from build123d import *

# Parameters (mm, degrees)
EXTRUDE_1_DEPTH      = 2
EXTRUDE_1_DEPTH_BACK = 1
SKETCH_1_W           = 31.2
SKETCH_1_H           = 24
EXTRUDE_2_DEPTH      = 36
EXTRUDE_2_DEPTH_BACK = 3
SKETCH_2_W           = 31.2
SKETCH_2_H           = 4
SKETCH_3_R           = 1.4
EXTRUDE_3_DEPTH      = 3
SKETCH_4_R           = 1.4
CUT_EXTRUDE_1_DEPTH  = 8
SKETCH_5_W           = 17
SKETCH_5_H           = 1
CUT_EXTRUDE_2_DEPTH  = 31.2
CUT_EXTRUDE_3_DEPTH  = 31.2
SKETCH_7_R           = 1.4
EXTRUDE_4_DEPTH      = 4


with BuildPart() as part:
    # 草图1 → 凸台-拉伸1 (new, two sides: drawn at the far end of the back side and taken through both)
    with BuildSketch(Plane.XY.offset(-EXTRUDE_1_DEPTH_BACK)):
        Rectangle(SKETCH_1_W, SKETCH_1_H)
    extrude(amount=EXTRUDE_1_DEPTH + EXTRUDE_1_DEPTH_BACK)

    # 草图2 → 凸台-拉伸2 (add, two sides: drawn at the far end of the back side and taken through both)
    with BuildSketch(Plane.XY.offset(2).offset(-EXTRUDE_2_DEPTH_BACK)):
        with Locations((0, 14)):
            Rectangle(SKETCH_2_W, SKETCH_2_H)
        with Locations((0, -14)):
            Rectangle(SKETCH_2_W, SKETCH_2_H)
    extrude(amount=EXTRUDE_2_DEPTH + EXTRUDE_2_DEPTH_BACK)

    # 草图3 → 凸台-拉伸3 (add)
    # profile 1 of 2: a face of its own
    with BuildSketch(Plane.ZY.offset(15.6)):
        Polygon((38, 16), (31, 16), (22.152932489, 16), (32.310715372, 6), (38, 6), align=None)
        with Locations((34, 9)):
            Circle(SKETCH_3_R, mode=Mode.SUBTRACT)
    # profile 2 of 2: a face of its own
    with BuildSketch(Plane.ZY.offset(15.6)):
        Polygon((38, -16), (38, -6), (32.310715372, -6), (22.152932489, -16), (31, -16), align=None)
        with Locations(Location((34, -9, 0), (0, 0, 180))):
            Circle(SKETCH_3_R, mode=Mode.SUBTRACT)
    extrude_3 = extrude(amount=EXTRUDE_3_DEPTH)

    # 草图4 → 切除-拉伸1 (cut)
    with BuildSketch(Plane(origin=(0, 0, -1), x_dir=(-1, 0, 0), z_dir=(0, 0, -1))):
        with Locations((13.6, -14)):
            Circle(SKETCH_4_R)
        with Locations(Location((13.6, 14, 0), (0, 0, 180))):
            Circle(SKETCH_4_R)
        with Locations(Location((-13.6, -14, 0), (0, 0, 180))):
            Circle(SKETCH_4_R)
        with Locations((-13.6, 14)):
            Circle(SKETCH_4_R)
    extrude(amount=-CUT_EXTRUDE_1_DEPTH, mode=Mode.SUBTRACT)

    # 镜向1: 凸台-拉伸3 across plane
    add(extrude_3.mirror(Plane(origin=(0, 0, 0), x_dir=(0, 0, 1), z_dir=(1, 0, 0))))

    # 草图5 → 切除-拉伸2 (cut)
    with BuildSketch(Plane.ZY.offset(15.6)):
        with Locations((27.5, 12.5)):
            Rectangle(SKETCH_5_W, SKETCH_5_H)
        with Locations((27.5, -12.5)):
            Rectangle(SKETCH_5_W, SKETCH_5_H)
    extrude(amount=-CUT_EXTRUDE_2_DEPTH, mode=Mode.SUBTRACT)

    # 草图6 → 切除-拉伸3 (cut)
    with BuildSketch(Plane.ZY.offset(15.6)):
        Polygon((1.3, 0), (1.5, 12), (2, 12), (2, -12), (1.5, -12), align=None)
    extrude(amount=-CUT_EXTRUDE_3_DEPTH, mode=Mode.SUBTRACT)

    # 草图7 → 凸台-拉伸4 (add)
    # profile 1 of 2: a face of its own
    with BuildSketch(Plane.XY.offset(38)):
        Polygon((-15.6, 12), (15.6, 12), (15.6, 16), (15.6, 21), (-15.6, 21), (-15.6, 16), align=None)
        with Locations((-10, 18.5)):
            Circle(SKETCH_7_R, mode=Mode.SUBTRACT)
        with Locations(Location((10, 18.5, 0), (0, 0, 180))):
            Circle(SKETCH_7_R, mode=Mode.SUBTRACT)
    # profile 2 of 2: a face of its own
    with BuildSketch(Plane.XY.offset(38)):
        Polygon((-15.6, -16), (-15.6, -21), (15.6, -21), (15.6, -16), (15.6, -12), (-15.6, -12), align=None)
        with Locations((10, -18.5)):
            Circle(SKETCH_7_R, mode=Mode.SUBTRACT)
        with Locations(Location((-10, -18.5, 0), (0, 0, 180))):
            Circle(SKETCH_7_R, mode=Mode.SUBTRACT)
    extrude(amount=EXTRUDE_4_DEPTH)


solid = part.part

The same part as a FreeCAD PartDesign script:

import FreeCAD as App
import Part
import Sketcher

V = App.Vector


def add_polygon(sketch, points):
    """Adds a closed chain of lines whose ends are joined by coincident constraints."""
    first, n = sketch.GeometryCount, len(points)
    for a, b in zip(points, points[1:] + points[:1]):
        sketch.addGeometry(Part.LineSegment(App.Vector(*a, 0), App.Vector(*b, 0)), False)
    for i in range(n):
        sketch.addConstraint(Sketcher.Constraint("Coincident", first + i, 2, first + (i + 1) % n, 1))

doc = App.newDocument("Part")
params = doc.addObject("Spreadsheet::Sheet", "Params")
for row, (alias, value) in enumerate([
    ("sketch1_height", "24 mm"),
    ("sketch1_width", "31.2 mm"),
    ("pad1_length", "2 mm"),
    ("pad1_length2", "1 mm"),
    ("sketch2_height", "4 mm"),
    ("sketch2_width", "31.2 mm"),
    ("pad2_length", "36 mm"),
    ("pad2_length2", "3 mm"),
    ("sketch3_diameter", "2.8 mm"),
    ("sketch3_width", "10 mm"),
    ("pad3_length", "3 mm"),
    ("sketch4_diameter", "2.8 mm"),
    ("pocket1_length", "8 mm"),
    ("sketch5_width", "1 mm"),
    ("sketch5_height", "17 mm"),
    ("pocket2_length", "31.2 mm"),
    ("sketch6_width", "24 mm"),
    ("sketch6_height", "0.5 mm"),
    ("pocket3_length", "31.2 mm"),
    ("sketch7_diameter", "2.8 mm"),
    ("sketch7_height", "9 mm"),
    ("sketch7_width", "31.2 mm"),
    ("pad4_length", "4 mm"),
], start=1):
    params.set(f"A{row}", alias)
    params.set(f"B{row}", "=" + value)
    params.setAlias(f"B{row}", alias)

body = doc.addObject("PartDesign::Body", "Body")

sketch1 = doc.addObject("Sketcher::SketchObject", "Sketch")
body.addObject(sketch1)
sketch1.AttachmentSupport = (doc.XY_Plane, [""])
sketch1.MapMode = "FlatFace"
add_polygon(sketch1, [(-15.6, 12), (-15.6, -12), (15.6, -12), (15.6, 12)])
sketch1.addConstraint([
    Sketcher.Constraint("Vertical", 0),
    Sketcher.Constraint("Horizontal", 1),
    Sketcher.Constraint("Vertical", 2),
    Sketcher.Constraint("Horizontal", 3),
    Sketcher.Constraint("Symmetric", 0, 2, 2, 2, -1, 1),
    Sketcher.Constraint("DistanceY", 0, 2, 0, 1, 24.0),
    Sketcher.Constraint("DistanceX", 1, 1, 1, 2, 31.2),
])
sketch1.setExpression("Constraints[9]", "Params.sketch1_height")
sketch1.setExpression("Constraints[10]", "Params.sketch1_width")
pad1 = doc.addObject("PartDesign::Pad", "Pad")
body.addObject(pad1)
pad1.Profile = sketch1
pad1.Type = "TwoLengths"
pad1.setExpression("Length", "Params.pad1_length")
pad1.setExpression("Length2", "Params.pad1_length2")

sketch2 = doc.addObject("Sketcher::SketchObject", "Sketch001")
body.addObject(sketch2)
sketch2.AttachmentSupport = (doc.XY_Plane, [""])
sketch2.MapMode = "FlatFace"
sketch2.AttachmentOffset = App.Placement(V(0, 0, 2), App.Rotation())
add_polygon(sketch2, [(-15.6, 16), (-15.6, 12), (15.6, 12), (15.6, 16)])
add_polygon(sketch2, [(-15.6, -12), (-15.6, -16), (15.6, -16), (15.6, -12)])
sketch2.addConstraint([
    Sketcher.Constraint("Vertical", 0),
    Sketcher.Constraint("Horizontal", 1),
    Sketcher.Constraint("Vertical", 2),
    Sketcher.Constraint("Horizontal", 3),
    Sketcher.Constraint("Vertical", 4),
    Sketcher.Constraint("Horizontal", 5),
    Sketcher.Constraint("Vertical", 6),
    Sketcher.Constraint("Horizontal", 7),
    Sketcher.Constraint("Symmetric", 2, 2, 4, 2, -1, 1),
    Sketcher.Constraint("Symmetric", 0, 2, 6, 2, -1, 1),
    Sketcher.Constraint("Vertical", 3, 2, 4, 2),
    Sketcher.Constraint("DistanceY", 0, 2, 0, 1, 4.0),
    Sketcher.Constraint("DistanceX", 1, 1, 1, 2, 31.2),
    Sketcher.Constraint("DistanceY", -1, 1, 0, 2, 12.0),
])
sketch2.setExpression("Constraints[19]", "Params.sketch2_height")
sketch2.setExpression("Constraints[20]", "Params.sketch2_width")
pad2 = doc.addObject("PartDesign::Pad", "Pad001")
body.addObject(pad2)
pad2.Profile = sketch2
pad2.Type = "TwoLengths"
pad2.setExpression("Length", "Params.pad2_length")
pad2.setExpression("Length2", "Params.pad2_length2")

sketch3 = doc.addObject("Sketcher::SketchObject", "Sketch002")
body.addObject(sketch3)
sketch3.AttachmentSupport = (doc.YZ_Plane, [""])
sketch3.MapMode = "FlatFace"
sketch3.AttachmentOffset = App.Placement(V(0, 0, -15.6), App.Rotation())
add_polygon(sketch3, [(16, 38), (16, 22.152932), (6, 32.310715), (6, 38)])
sketch3.addGeometry(Part.Circle(V(9, 34, 0), V(0, 0, 1), 1.4), False)
add_polygon(sketch3, [(-16, 38), (-6, 38), (-6, 32.310715), (-16, 22.152932)])
sketch3.addGeometry(Part.Circle(V(-9, 34, 0), V(0, 0, 1), 1.4), False)
sketch3.addConstraint([
    Sketcher.Constraint("Vertical", 0),
    Sketcher.Constraint("Vertical", 2),
    Sketcher.Constraint("Horizontal", 3),
    Sketcher.Constraint("Horizontal", 5),
    Sketcher.Constraint("Vertical", 6),
    Sketcher.Constraint("Vertical", 8),
    Sketcher.Constraint("Equal", 4, 9),
    Sketcher.Constraint("Symmetric", 4, 3, 9, 3, -2),
    Sketcher.Constraint("Symmetric", 2, 2, 5, 2, -2),
    Sketcher.Constraint("Symmetric", 0, 2, 7, 2, -2),
    Sketcher.Constraint("Horizontal", 1, 2, 6, 2),
    Sketcher.Constraint("Diameter", 4, 2.8),
    Sketcher.Constraint("DistanceX", 3, 1, 3, 2, 10.0),
    Sketcher.Constraint("DistanceX", -1, 1, 4, 3, 9.0),
    Sketcher.Constraint("DistanceY", -1, 1, 4, 3, 34.0),
    Sketcher.Constraint("DistanceX", -1, 1, 0, 2, 16.0),
    Sketcher.Constraint("DistanceY", -1, 1, 2, 2, 38.0),
    Sketcher.Constraint("Distance", 1, 14.254142),
    Sketcher.Constraint("DistanceY", 0, 2, 0, 1, 15.847068),
])
sketch3.setExpression("Constraints[19]", "Params.sketch3_diameter")
sketch3.setExpression("Constraints[20]", "Params.sketch3_width")
pad3 = doc.addObject("PartDesign::Pad", "Pad002")
body.addObject(pad3)
pad3.Profile = sketch3
pad3.setExpression("Length", "Params.pad3_length")
pad3.Reversed = True

sketch4 = doc.addObject("Sketcher::SketchObject", "Sketch003")
body.addObject(sketch4)
sketch4.AttachmentSupport = (doc.XY_Plane, [""])
sketch4.MapMode = "FlatFace"
sketch4.AttachmentOffset = App.Placement(V(0, 0, -1), App.Rotation())
sketch4.addGeometry([
    Part.Circle(V(-13.6, -14, 0), V(0, 0, 1), 1.4),
    Part.Circle(V(-13.6, 14, 0), V(0, 0, 1), 1.4),
    Part.Circle(V(13.6, -14, 0), V(0, 0, 1), 1.4),
    Part.Circle(V(13.6, 14, 0), V(0, 0, 1), 1.4),
], False)
sketch4.addConstraint([
    Sketcher.Constraint("Equal", 0, 1),
    Sketcher.Constraint("Equal", 1, 2),
    Sketcher.Constraint("Equal", 2, 3),
    Sketcher.Constraint("Symmetric", 1, 3, 2, 3, -1, 1),
    Sketcher.Constraint("Symmetric", 0, 3, 3, 3, -1, 1),
    Sketcher.Constraint("Symmetric", 0, 3, 2, 3, -2),
    Sketcher.Constraint("Diameter", 0, 2.8),
    Sketcher.Constraint("DistanceY", 0, 3, -1, 1, 14.0),
    Sketcher.Constraint("DistanceX", 0, 3, -1, 1, 13.6),
])
sketch4.setExpression("Constraints[6]", "Params.sketch4_diameter")
pocket1 = doc.addObject("PartDesign::Pocket", "Pocket")
body.addObject(pocket1)
pocket1.Profile = sketch4
pocket1.setExpression("Length", "Params.pocket1_length")
pocket1.Reversed = True
doc.recompute()

mirrored = doc.addObject("PartDesign::Mirrored", "Mirrored")
body.addObject(mirrored)
mirrored.Originals = [pad3]
mirrored.MirrorPlane = (doc.YZ_Plane, [""])
body.Tip = mirrored

sketch5 = doc.addObject("Sketcher::SketchObject", "Sketch004")
body.addObject(sketch5)
sketch5.AttachmentSupport = (doc.YZ_Plane, [""])
sketch5.MapMode = "FlatFace"
sketch5.AttachmentOffset = App.Placement(V(0, 0, -15.6), App.Rotation())
add_polygon(sketch5, [(13, 19), (12, 19), (12, 36), (13, 36)])
add_polygon(sketch5, [(-12, 19), (-13, 19), (-13, 36), (-12, 36)])
sketch5.addConstraint([
    Sketcher.Constraint("Horizontal", 0),
    Sketcher.Constraint("Vertical", 1),
    Sketcher.Constraint("Horizontal", 2),
    Sketcher.Constraint("Vertical", 3),
    Sketcher.Constraint("Horizontal", 4),
    Sketcher.Constraint("Vertical", 5),
    Sketcher.Constraint("Horizontal", 6),
    Sketcher.Constraint("Vertical", 7),
    Sketcher.Constraint("Symmetric", 3, 2, 4, 2, -2),
    Sketcher.Constraint("Symmetric", 1, 2, 6, 2, -2),
    Sketcher.Constraint("DistanceX", 0, 2, 0, 1, 1.0),
    Sketcher.Constraint("DistanceY", 1, 1, 1, 2, 17.0),
    Sketcher.Constraint("DistanceX", -1, 1, 0, 2, 12.0),
    Sketcher.Constraint("DistanceY", -1, 1, 0, 2, 19.0),
])
sketch5.setExpression("Constraints[18]", "Params.sketch5_width")
sketch5.setExpression("Constraints[19]", "Params.sketch5_height")
pocket2 = doc.addObject("PartDesign::Pocket", "Pocket001")
body.addObject(pocket2)
pocket2.Profile = sketch5
pocket2.setExpression("Length", "Params.pocket2_length")
pocket2.Reversed = True

sketch6 = doc.addObject("Sketcher::SketchObject", "Sketch005")
body.addObject(sketch6)
sketch6.AttachmentSupport = (doc.YZ_Plane, [""])
sketch6.MapMode = "FlatFace"
sketch6.AttachmentOffset = App.Placement(V(0, 0, -15.6), App.Rotation())
add_polygon(sketch6, [(12, 1.5), (0, 1.3), (-12, 1.5), (-12, 2), (12, 2)])
sketch6.addConstraint([
    Sketcher.Constraint("Vertical", 2),
    Sketcher.Constraint("Horizontal", 3),
    Sketcher.Constraint("Vertical", 4),
    Sketcher.Constraint("Symmetric", 1, 2, 4, 2, -2),
    Sketcher.Constraint("PointOnObject", 0, 2, -2),
    Sketcher.Constraint("DistanceX", 3, 1, 3, 2, 24.0),
    Sketcher.Constraint("DistanceY", 2, 1, 2, 2, 0.5),
    Sketcher.Constraint("DistanceY", -1, 1, 2, 2, 2.0),
    Sketcher.Constraint("DistanceY", -1, 1, 0, 2, 1.3),
])
sketch6.setExpression("Constraints[10]", "Params.sketch6_width")
sketch6.setExpression("Constraints[11]", "Params.sketch6_height")
pocket3 = doc.addObject("PartDesign::Pocket", "Pocket002")
body.addObject(pocket3)
pocket3.Profile = sketch6
pocket3.setExpression("Length", "Params.pocket3_length")
pocket3.Reversed = True

sketch7 = doc.addObject("Sketcher::SketchObject", "Sketch006")
body.addObject(sketch7)
sketch7.AttachmentSupport = (doc.XY_Plane, [""])
sketch7.MapMode = "FlatFace"
sketch7.AttachmentOffset = App.Placement(V(0, 0, 38), App.Rotation())
add_polygon(sketch7, [(-15.6, 12), (15.6, 12), (15.6, 21), (-15.6, 21)])
sketch7.addGeometry(Part.Circle(V(-10, 18.5, 0), V(0, 0, 1), 1.4), False)
sketch7.addGeometry(Part.Circle(V(10, 18.5, 0), V(0, 0, 1), 1.4), False)
add_polygon(sketch7, [(-15.6, -21), (15.6, -21), (15.6, -12), (-15.6, -12)])
sketch7.addGeometry(Part.Circle(V(-10, -18.5, 0), V(0, 0, 1), 1.4), False)
sketch7.addGeometry(Part.Circle(V(10, -18.5, 0), V(0, 0, 1), 1.4), False)
sketch7.addConstraint([
    Sketcher.Constraint("Horizontal", 0),
    Sketcher.Constraint("Vertical", 1),
    Sketcher.Constraint("Horizontal", 2),
    Sketcher.Constraint("Vertical", 3),
    Sketcher.Constraint("Horizontal", 6),
    Sketcher.Constraint("Vertical", 7),
    Sketcher.Constraint("Horizontal", 8),
    Sketcher.Constraint("Vertical", 9),
    Sketcher.Constraint("Equal", 4, 5),
    Sketcher.Constraint("Equal", 5, 10),
    Sketcher.Constraint("Equal", 10, 11),
    Sketcher.Constraint("Symmetric", 5, 3, 10, 3, -1, 1),
    Sketcher.Constraint("Symmetric", 4, 3, 11, 3, -1, 1),
    Sketcher.Constraint("Symmetric", 2, 2, 6, 2, -1, 1),
    Sketcher.Constraint("Symmetric", 0, 2, 8, 2, -1, 1),
    Sketcher.Constraint("Symmetric", 4, 3, 5, 3, -2),
    Sketcher.Constraint("Vertical", 1, 2, 6, 2),
    Sketcher.Constraint("Diameter", 4, 2.8),
    Sketcher.Constraint("DistanceY", 1, 1, 1, 2, 9.0),
    Sketcher.Constraint("DistanceX", 0, 1, 0, 2, 31.2),
    Sketcher.Constraint("DistanceX", 4, 3, -1, 1, 10.0),
    Sketcher.Constraint("DistanceY", -1, 1, 0, 2, 12.0),
    Sketcher.Constraint("DistanceY", 10, 3, 4, 3, 37.0),
])
sketch7.setExpression("Constraints[25]", "Params.sketch7_diameter")
sketch7.setExpression("Constraints[26]", "Params.sketch7_height")
sketch7.setExpression("Constraints[27]", "Params.sketch7_width")
pad4 = doc.addObject("PartDesign::Pad", "Pad003")
body.addObject(pad4)
pad4.Profile = sketch7
pad4.setExpression("Length", "Params.pad4_length")

doc.recompute()
